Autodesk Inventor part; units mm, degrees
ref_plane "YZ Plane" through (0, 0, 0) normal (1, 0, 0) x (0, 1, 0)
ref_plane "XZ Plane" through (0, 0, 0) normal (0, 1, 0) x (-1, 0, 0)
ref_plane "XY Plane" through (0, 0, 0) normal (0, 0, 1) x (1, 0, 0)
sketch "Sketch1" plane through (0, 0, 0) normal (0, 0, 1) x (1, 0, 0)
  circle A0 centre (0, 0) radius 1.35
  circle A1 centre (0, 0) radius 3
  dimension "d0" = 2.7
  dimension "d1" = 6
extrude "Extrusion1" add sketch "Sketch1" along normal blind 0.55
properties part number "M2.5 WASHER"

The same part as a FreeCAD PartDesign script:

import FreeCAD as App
import Part
import Sketcher
Q = App.Units.Quantity

doc = App.newDocument("Part")
params = doc.addObject("Spreadsheet::Sheet", "Params")
for row, (alias, value) in enumerate([
    ("sketch1_diameter", "6 mm"),
    ("sketch1_diameter2", "2.7 mm"),
    ("pad1_length", "0.55 mm"),
], start=1):
    params.set(f"A{row}", alias)
    params.set(f"B{row}", "=" + value)
    params.setAlias(f"B{row}", alias)

body = doc.addObject("PartDesign::Body", "Body")

sketch1 = body.newObject("Sketcher::SketchObject", "Sketch")
sketch1.AttachmentSupport = (doc.getObject("XY_Plane"), [""])
sketch1.MapMode = "FlatFace"
sketch1.addGeometry([
    Part.Circle(App.Vector(0, 0, 0), App.Vector(0, 0, 1), 3),
    Part.Circle(App.Vector(0, 0, 0), App.Vector(0, 0, 1), 1.35),
], False)
sketch1.addConstraint([
    Sketcher.Constraint("Coincident", 0, 3, -1, 1),
    Sketcher.Constraint("Coincident", 1, 3, -1, 1),
    Sketcher.Constraint("Diameter", 0, Q("6 mm")),
    Sketcher.Constraint("Diameter", 1, Q("2.7 mm")),
])
sketch1.setExpression("Constraints[2]", "Params.sketch1_diameter")
sketch1.setExpression("Constraints[3]", "Params.sketch1_diameter2")
pad1 = body.newObject("PartDesign::Pad", "Pad")
pad1.Profile = sketch1
pad1.setExpression("Length", "Params.pad1_length")

doc.recompute()
